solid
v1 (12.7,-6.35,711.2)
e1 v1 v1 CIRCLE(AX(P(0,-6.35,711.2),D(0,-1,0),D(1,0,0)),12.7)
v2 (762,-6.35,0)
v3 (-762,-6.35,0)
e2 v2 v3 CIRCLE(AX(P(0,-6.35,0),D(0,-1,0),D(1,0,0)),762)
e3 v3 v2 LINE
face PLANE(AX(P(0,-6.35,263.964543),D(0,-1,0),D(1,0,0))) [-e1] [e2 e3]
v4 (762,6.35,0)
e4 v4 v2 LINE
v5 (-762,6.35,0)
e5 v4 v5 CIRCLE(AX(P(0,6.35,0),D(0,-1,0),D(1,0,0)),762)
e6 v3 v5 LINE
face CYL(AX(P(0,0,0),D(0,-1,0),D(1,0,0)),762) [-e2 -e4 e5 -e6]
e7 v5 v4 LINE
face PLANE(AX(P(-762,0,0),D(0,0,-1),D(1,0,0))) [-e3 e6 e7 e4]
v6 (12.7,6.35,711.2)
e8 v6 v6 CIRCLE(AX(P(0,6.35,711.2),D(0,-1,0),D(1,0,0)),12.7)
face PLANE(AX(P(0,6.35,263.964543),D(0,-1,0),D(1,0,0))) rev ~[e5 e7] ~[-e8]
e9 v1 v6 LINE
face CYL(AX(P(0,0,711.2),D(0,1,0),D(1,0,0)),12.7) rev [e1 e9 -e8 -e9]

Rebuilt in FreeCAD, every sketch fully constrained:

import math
import FreeCAD as App
import Part
import Sketcher
Q = App.Units.Quantity

doc = App.newDocument("Part")
params = doc.addObject("Spreadsheet::Sheet", "Params")
for row, (alias, value) in enumerate([
    ("sketch1_diameter", "1 in"),
    ("sketch1_radius", "30 in"),
    ("pad1_length", "0.5 in"),
], start=1):
    params.set(f"A{row}", alias)
    params.set(f"B{row}", "=" + value)
    params.setAlias(f"B{row}", alias)

body = doc.addObject("PartDesign::Body", "Body")

# Sketch on XZ plane
sketch1 = body.newObject("Sketcher::SketchObject", "Sketch")
sketch1.AttachmentSupport = (doc.getObject("XZ_Plane"), [""])
sketch1.MapMode = "FlatFace"
sketch1.addGeometry([
    Part.LineSegment(App.Vector(-762, 0, 0), App.Vector(762, 0, 0)),
    Part.ArcOfCircle(Part.Circle(App.Vector(0, 0, 0), App.Vector(0, 0, 1), 762), math.radians(0), math.radians(180)),
    Part.Circle(App.Vector(0, 711, 0), App.Vector(0, 0, 1), 13),
], False)
sketch1.addConstraint([
    Sketcher.Constraint("Coincident", 0, 1, 1, 2),
    Sketcher.Constraint("Coincident", 1, 1, 0, 2),
    Sketcher.Constraint("Horizontal", 0),
    Sketcher.Constraint("Coincident", 1, 3, -1, 1),
    Sketcher.Constraint("PointOnObject", 2, 3, -2),
    Sketcher.Constraint("PointOnObject", 0, 1, -1),
    Sketcher.Constraint("Diameter", 2, Q("1 in")),
    Sketcher.Constraint("Radius", 1, Q("30 in")),
    Sketcher.Constraint("DistanceY", -1, 1, 2, 3, Q("28 in")),
])
sketch1.setExpression("Constraints[6]", "Params.sketch1_diameter")
sketch1.setExpression("Constraints[7]", "Params.sketch1_radius")
pad1 = body.newObject("PartDesign::Pad", "Pad")
pad1.Profile = sketch1
pad1.setExpression("Length", "Params.pad1_length")
pad1.Midplane = True

doc.recompute()
